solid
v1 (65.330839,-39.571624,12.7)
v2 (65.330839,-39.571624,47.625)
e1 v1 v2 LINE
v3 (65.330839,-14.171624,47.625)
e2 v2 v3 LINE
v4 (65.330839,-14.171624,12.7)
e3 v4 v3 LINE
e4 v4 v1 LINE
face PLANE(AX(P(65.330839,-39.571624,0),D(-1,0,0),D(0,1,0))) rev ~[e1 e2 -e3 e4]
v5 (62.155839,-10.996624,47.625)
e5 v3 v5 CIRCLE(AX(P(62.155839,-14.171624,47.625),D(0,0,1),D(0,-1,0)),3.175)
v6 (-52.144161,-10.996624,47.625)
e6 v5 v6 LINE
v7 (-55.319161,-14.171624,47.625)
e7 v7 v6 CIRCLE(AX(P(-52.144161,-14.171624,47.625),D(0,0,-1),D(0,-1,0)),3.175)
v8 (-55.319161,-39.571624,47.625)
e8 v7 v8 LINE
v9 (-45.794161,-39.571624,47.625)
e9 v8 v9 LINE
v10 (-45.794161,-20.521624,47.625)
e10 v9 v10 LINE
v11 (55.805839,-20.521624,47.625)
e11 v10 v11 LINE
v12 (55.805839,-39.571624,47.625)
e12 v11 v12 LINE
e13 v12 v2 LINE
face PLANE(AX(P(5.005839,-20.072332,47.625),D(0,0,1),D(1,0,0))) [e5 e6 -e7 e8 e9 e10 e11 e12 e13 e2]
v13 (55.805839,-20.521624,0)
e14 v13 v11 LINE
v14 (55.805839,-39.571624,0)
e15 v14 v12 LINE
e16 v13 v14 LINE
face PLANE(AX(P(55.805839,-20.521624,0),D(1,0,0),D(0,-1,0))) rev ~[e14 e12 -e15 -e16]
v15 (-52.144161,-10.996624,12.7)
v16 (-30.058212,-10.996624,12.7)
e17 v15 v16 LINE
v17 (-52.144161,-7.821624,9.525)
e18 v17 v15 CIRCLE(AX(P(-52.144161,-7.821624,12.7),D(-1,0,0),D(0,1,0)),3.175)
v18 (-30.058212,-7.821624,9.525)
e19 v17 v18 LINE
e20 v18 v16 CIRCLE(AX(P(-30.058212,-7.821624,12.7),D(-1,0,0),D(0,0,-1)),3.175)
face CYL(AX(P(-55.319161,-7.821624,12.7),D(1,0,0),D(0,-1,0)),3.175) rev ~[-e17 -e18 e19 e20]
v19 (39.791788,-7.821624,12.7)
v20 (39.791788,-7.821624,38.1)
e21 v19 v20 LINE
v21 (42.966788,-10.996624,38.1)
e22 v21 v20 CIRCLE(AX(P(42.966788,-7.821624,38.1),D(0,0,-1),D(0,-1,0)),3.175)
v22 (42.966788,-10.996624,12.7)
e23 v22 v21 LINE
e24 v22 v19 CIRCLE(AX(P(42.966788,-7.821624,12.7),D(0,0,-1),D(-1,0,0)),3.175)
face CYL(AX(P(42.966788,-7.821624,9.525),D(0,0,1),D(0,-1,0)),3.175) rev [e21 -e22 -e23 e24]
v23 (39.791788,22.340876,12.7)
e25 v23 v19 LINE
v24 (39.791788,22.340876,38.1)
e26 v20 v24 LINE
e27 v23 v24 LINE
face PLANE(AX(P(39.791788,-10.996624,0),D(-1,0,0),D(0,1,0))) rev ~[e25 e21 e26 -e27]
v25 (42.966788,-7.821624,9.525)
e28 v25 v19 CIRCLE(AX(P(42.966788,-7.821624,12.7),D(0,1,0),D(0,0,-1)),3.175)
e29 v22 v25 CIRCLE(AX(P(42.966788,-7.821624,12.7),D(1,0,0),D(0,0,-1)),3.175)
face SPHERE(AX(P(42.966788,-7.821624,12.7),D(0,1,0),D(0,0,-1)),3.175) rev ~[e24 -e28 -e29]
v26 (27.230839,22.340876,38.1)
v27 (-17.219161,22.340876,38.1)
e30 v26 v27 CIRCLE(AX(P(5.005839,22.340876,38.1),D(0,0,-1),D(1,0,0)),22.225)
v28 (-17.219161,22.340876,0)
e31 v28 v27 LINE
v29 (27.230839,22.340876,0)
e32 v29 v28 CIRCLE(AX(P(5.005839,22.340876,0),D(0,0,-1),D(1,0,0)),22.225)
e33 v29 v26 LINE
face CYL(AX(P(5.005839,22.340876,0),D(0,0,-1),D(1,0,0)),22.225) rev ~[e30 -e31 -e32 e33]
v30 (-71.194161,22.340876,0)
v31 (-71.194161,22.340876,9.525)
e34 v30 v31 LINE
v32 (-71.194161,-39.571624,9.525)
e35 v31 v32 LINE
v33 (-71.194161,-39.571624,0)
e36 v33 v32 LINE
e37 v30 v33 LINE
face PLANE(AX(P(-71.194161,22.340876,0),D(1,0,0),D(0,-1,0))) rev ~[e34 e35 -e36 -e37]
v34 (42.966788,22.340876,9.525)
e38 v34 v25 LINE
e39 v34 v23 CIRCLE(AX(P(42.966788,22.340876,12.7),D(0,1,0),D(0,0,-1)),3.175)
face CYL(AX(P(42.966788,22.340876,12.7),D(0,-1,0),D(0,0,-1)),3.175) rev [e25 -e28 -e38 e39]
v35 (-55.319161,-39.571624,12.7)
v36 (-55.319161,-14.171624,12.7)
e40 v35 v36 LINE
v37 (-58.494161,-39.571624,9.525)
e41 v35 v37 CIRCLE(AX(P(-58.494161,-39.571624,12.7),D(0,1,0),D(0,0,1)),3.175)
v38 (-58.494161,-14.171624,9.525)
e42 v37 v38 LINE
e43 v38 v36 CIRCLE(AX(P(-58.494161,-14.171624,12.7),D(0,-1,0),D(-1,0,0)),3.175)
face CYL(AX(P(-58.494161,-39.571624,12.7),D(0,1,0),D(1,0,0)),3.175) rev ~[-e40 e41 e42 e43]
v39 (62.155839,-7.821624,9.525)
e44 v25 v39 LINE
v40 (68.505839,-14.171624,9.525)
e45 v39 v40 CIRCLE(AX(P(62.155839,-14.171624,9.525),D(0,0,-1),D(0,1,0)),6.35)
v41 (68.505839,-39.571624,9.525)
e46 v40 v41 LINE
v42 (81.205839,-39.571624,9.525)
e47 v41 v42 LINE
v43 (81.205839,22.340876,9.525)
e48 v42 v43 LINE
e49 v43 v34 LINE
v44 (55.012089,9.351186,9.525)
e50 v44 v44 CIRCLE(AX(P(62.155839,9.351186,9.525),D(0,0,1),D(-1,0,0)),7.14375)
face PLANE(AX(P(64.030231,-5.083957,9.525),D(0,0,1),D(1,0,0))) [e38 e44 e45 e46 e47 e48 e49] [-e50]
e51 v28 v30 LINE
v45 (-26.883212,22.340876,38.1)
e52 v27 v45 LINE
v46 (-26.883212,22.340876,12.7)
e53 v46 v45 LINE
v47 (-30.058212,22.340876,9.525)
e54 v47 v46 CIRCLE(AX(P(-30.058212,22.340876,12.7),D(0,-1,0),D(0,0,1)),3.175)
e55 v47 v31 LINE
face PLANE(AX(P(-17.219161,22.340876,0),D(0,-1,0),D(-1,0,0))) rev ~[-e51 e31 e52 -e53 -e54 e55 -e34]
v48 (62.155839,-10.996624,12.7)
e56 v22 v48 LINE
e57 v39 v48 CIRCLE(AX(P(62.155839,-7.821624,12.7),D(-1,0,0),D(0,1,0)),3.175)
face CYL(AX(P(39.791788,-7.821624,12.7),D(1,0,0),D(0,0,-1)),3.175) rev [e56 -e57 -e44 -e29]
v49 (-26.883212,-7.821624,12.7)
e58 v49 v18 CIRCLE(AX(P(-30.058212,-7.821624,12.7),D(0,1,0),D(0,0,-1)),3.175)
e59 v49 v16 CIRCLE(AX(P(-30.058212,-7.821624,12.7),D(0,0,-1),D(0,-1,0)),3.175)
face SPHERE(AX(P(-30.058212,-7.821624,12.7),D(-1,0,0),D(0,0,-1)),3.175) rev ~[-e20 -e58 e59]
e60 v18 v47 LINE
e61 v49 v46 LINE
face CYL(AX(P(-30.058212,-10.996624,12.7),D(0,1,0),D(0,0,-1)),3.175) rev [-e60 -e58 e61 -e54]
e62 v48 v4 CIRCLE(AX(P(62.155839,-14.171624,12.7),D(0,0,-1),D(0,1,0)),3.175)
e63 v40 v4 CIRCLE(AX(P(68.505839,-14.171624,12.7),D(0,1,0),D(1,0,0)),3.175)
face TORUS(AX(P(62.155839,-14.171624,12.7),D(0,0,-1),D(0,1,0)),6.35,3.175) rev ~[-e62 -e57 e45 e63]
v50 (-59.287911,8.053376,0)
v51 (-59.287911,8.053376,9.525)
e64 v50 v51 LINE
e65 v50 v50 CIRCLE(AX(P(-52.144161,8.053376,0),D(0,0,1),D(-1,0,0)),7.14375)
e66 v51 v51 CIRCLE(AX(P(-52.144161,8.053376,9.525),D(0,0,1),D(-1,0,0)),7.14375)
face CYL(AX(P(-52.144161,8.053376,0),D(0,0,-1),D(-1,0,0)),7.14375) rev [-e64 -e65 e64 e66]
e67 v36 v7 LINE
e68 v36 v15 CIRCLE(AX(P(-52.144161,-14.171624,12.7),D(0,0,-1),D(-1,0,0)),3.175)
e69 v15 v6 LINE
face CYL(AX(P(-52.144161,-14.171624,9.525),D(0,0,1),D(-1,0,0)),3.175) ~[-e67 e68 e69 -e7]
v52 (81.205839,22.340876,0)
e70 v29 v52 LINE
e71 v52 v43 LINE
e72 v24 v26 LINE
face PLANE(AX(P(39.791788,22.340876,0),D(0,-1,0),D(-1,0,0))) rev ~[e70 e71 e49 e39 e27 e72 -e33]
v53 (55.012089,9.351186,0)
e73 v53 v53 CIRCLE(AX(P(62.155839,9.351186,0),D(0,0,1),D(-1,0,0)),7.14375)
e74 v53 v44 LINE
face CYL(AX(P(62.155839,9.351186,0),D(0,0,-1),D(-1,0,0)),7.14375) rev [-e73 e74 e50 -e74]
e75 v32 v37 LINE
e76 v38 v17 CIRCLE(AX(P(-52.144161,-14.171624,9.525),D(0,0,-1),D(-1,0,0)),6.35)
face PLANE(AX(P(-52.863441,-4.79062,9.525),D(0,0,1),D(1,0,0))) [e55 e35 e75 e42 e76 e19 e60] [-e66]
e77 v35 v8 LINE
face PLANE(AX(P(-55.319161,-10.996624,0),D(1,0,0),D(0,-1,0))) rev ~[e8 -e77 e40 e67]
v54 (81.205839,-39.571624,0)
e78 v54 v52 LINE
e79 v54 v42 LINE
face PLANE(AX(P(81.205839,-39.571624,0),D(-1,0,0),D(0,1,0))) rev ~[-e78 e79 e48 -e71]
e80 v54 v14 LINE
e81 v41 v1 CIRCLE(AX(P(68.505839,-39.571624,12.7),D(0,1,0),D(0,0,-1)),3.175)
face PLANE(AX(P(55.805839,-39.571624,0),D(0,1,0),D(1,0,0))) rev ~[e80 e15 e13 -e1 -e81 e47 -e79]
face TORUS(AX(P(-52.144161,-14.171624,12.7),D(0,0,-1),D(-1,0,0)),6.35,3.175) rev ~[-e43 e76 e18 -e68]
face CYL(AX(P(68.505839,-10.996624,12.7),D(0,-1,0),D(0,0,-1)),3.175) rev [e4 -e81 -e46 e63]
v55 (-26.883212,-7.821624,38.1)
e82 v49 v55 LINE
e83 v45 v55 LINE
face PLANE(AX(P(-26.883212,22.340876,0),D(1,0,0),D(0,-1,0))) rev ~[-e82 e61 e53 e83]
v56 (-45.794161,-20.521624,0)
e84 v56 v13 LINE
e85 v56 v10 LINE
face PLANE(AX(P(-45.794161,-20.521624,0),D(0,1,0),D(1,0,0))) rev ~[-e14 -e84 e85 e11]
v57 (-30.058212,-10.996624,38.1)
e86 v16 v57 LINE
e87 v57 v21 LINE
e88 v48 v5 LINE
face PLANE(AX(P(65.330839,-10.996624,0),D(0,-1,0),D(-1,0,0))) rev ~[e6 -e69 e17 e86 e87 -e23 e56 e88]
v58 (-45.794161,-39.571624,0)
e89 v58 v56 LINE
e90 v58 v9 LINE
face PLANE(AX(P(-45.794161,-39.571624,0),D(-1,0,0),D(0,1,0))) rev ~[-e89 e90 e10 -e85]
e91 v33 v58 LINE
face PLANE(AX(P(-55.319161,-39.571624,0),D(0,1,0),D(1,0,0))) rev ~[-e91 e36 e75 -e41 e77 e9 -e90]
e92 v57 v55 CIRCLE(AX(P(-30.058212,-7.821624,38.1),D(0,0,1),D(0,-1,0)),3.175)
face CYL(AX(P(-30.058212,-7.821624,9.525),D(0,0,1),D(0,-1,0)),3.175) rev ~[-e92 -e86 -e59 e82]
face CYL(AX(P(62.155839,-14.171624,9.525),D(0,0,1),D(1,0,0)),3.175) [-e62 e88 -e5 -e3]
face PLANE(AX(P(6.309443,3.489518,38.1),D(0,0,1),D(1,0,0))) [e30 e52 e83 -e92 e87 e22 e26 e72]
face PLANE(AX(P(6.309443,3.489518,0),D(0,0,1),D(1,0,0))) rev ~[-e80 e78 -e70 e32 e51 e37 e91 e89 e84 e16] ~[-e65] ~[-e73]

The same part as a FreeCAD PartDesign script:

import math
import FreeCAD as App
import Part
import Sketcher

V = App.Vector
Q = App.Units.Quantity


def edges_at(feature, points):
    """Names of the edges that pass closest to the given points."""
    edges = feature.Shape.Edges
    near = lambda p: min(range(len(edges)), key=lambda i: edges[i].distToShape(Part.Vertex(*p))[0])
    return sorted({f"Edge{near(p) + 1}" for p in points})


def add_polygon(sketch, points):
    """Adds a closed chain of lines whose ends are joined by coincident constraints."""
    first, n = sketch.GeometryCount, len(points)
    for a, b in zip(points, points[1:] + points[:1]):
        sketch.addGeometry(Part.LineSegment(App.Vector(*a, 0), App.Vector(*b, 0)), False)
    for i in range(n):
        sketch.addConstraint(Sketcher.Constraint("Coincident", first + i, 2, first + (i + 1) % n, 1))

doc = App.newDocument("Part")
params = doc.addObject("Spreadsheet::Sheet", "Params")
for row, (alias, value) in enumerate([
    ("sketch1_diameter", "0.5625 in"),
    ("sketch1_width", "0.625 in"),
    ("sketch1_height", "1.3125 in"),
    ("sketch1_height2", "2.4375 in"),
    ("pad1_length", "0.375 in"),
    ("sketch2_diameter", "0.5625 in"),
    ("sketch2_width", "0.625 in"),
    ("sketch2_height", "1.3125 in"),
    ("sketch2_height2", "1.125 in"),
    ("pad2_length", "0.375 in"),
    ("sketch3_width", "4 in"),
    ("sketch3_width2", "4.75 in"),
    ("sketch3_height", "0.75 in"),
    ("sketch3_height2", "1.125 in"),
    ("pad3_length", "1.875 in"),
    ("sketch4_radius", "0.875 in"),
    ("sketch4_width", "2.625 in"),
    ("sketch4_height", "1.3125 in"),
    ("pad4_length", "1.5 in"),
    ("fillet_radius", "0.125 in"),
], start=1):
    params.set(f"A{row}", alias)
    params.set(f"B{row}", "=" + value)
    params.setAlias(f"B{row}", alias)

body = doc.addObject("PartDesign::Body", "Body")

sketch1 = doc.addObject("Sketcher::SketchObject", "Sketch")
body.addObject(sketch1)
sketch1.AttachmentSupport = (doc.XY_Plane, [""])
sketch1.MapMode = "FlatFace"
add_polygon(sketch1, [(-27, -11), (-27, 22), (-71, 22), (-71, -40), (-55, -40), (-55, -11)])
sketch1.addGeometry(Part.Circle(V(-52, 8, 0), V(0, 0, 1), 7), False)
sketch1.addConstraint([
    Sketcher.Constraint("Vertical", 0),
    Sketcher.Constraint("Horizontal", 1),
    Sketcher.Constraint("Vertical", 2),
    Sketcher.Constraint("Horizontal", 3),
    Sketcher.Constraint("Vertical", 4),
    Sketcher.Constraint("Horizontal", 5),
    Sketcher.Constraint("Diameter", 6, Q("0.5625 in")),
    Sketcher.Constraint("DistanceX", 3, 1, 3, 2, Q("0.625 in")),
    Sketcher.Constraint("DistanceY", 0, 1, 0, 2, Q("1.3125 in")),
    Sketcher.Constraint("DistanceY", 2, 2, 2, 1, Q("2.4375 in")),
    Sketcher.Constraint("DistanceX", 1, 2, 6, 3, Q("0.75 in")),
    Sketcher.Constraint("DistanceY", 4, 2, 6, 3, Q("0.75 in")),
    Sketcher.Constraint("DistanceX", 1, 2, 1, 1, 44.310949),
    Sketcher.Constraint("DistanceX", 6, 3, -1, 1, 52.144161),
    Sketcher.Constraint("DistanceY", -1, 1, 6, 3, 8.053376),
])
sketch1.setExpression("Constraints[12]", "Params.sketch1_diameter")
sketch1.setExpression("Constraints[13]", "Params.sketch1_width")
sketch1.setExpression("Constraints[14]", "Params.sketch1_height")
sketch1.setExpression("Constraints[15]", "Params.sketch1_height2")
pad1 = doc.addObject("PartDesign::Pad", "Pad")
body.addObject(pad1)
pad1.Profile = sketch1
pad1.setExpression("Length", "Params.pad1_length")
body2 = doc.addObject("PartDesign::Body", "Body001")

sketch2 = doc.addObject("Sketcher::SketchObject", "Sketch001")
body2.addObject(sketch2)
sketch2.AttachmentSupport = (doc.getObject("XY_Plane001"), [""])
sketch2.MapMode = "FlatFace"
add_polygon(sketch2, [(40, 22), (40, -11), (65, -11), (65, -40), (81, -40), (81, 22)])
sketch2.addGeometry(Part.Circle(V(62, 9, 0), V(0, 0, 1), 7), False)
sketch2.addConstraint([
    Sketcher.Constraint("Vertical", 0),
    Sketcher.Constraint("Horizontal", 1),
    Sketcher.Constraint("Vertical", 2),
    Sketcher.Constraint("Horizontal", 3),
    Sketcher.Constraint("Vertical", 4),
    Sketcher.Constraint("Horizontal", 5),
    Sketcher.Constraint("Diameter", 6, Q("0.5625 in")),
    Sketcher.Constraint("DistanceX", 3, 1, 3, 2, Q("0.625 in")),
    Sketcher.Constraint("DistanceY", 0, 2, 0, 1, Q("1.3125 in")),
    Sketcher.Constraint("DistanceY", 2, 2, 2, 1, Q("1.125 in")),
    Sketcher.Constraint("DistanceX", 6, 3, 3, 2, Q("0.75 in")),
    Sketcher.Constraint("DistanceX", 1, 1, 1, 2, 25.539051),
    Sketcher.Constraint("DistanceX", -1, 1, 6, 3, 62.155839),
    Sketcher.Constraint("DistanceY", 0, 2, 6, 3, 20.34781),
    Sketcher.Constraint("DistanceY", -1, 1, 6, 3, 9.351186),
])
sketch2.setExpression("Constraints[12]", "Params.sketch2_diameter")
sketch2.setExpression("Constraints[13]", "Params.sketch2_width")
sketch2.setExpression("Constraints[14]", "Params.sketch2_height")
sketch2.setExpression("Constraints[15]", "Params.sketch2_height2")
pad2 = doc.addObject("PartDesign::Pad", "Pad001")
body2.addObject(pad2)
pad2.Profile = sketch2
pad2.setExpression("Length", "Params.pad2_length")
body.AllowCompound = True
doc.recompute()

boolean = doc.addObject("PartDesign::Boolean", "Boolean")
body.addObject(boolean)
boolean.Type = "Fuse"
boolean.addObjects([body2])

sketch3 = doc.addObject("Sketcher::SketchObject", "Sketch002")
body.addObject(sketch3)
sketch3.AttachmentSupport = (doc.XY_Plane, [""])
sketch3.MapMode = "FlatFace"
add_polygon(sketch3, [(-55, -11), (-55, -40), (-46, -40), (-46, -21), (56, -21), (56, -40), (65, -40), (65, -11)])
sketch3.addConstraint([
    Sketcher.Constraint("Vertical", 0),
    Sketcher.Constraint("Horizontal", 1),
    Sketcher.Constraint("Vertical", 2),
    Sketcher.Constraint("Horizontal", 3),
    Sketcher.Constraint("Vertical", 4),
    Sketcher.Constraint("Horizontal", 5),
    Sketcher.Constraint("Vertical", 6),
    Sketcher.Constraint("Horizontal", 7),
    Sketcher.Constraint("Horizontal", 1, 2, 4, 2),
    Sketcher.Constraint("Equal", 1, 5),
    Sketcher.Constraint("DistanceX", 3, 1, 3, 2, Q("4 in")),
    Sketcher.Constraint("DistanceX", 7, 2, 7, 1, Q("4.75 in")),
    Sketcher.Constraint("DistanceY", 2, 1, 2, 2, Q("0.75 in")),
    Sketcher.Constraint("DistanceY", 0, 2, 0, 1, Q("1.125 in")),
    Sketcher.Constraint("DistanceX", 0, 2, -1, 1, 55.319161),
    Sketcher.Constraint("DistanceY", 0, 2, -1, 1, 39.571624),
])
sketch3.setExpression("Constraints[18]", "Params.sketch3_width")
sketch3.setExpression("Constraints[19]", "Params.sketch3_width2")
sketch3.setExpression("Constraints[20]", "Params.sketch3_height")
sketch3.setExpression("Constraints[21]", "Params.sketch3_height2")
pad3 = doc.addObject("PartDesign::Pad", "Pad002")
body.addObject(pad3)
pad3.Profile = sketch3
pad3.setExpression("Length", "Params.pad3_length")

sketch4 = doc.addObject("Sketcher::SketchObject", "Sketch003")
body.addObject(sketch4)
sketch4.AttachmentSupport = (doc.XY_Plane, [""])
sketch4.MapMode = "FlatFace"
sketch4.addGeometry([
    Part.LineSegment(V(-17, 22, 0), V(-27, 22, 0)),
    Part.LineSegment(V(-27, 22, 0), V(-27, -11, 0)),
    Part.LineSegment(V(-27, -11, 0), V(40, -11, 0)),
    Part.LineSegment(V(40, -11, 0), V(40, 22, 0)),
    Part.LineSegment(V(40, 22, 0), V(27, 22, 0)),
    Part.ArcOfCircle(Part.Circle(V(5, 22, 0), V(0, 0, 1), 22), math.radians(180), math.radians(360)),
], False)
sketch4.addConstraint([
    Sketcher.Constraint("Coincident", 0, 2, 1, 1),
    Sketcher.Constraint("Coincident", 1, 2, 2, 1),
    Sketcher.Constraint("Coincident", 2, 2, 3, 1),
    Sketcher.Constraint("Coincident", 3, 2, 4, 1),
    Sketcher.Constraint("Coincident", 4, 2, 5, 2),
    Sketcher.Constraint("Coincident", 5, 1, 0, 1),
    Sketcher.Constraint("Horizontal", 0),
    Sketcher.Constraint("Vertical", 1),
    Sketcher.Constraint("Horizontal", 2),
    Sketcher.Constraint("Vertical", 3),
    Sketcher.Constraint("Horizontal", 4),
    Sketcher.Constraint("Horizontal", 5, 3, 0, 2),
    Sketcher.Constraint("Horizontal", 0, 2, 3, 2),
    Sketcher.Constraint("Radius", 5, Q("0.875 in")),
    Sketcher.Constraint("DistanceX", 2, 1, 2, 2, Q("2.625 in")),
    Sketcher.Constraint("DistanceY", 1, 2, 1, 1, Q("1.3125 in")),
    Sketcher.Constraint("DistanceX", 0, 2, 0, 1, 9.664051),
    Sketcher.Constraint("DistanceX", -1, 1, 5, 3, 5.005839),
    Sketcher.Constraint("DistanceY", -1, 1, 5, 3, 22.340876),
])
sketch4.setExpression("Constraints[13]", "Params.sketch4_radius")
sketch4.setExpression("Constraints[14]", "Params.sketch4_width")
sketch4.setExpression("Constraints[15]", "Params.sketch4_height")
pad4 = doc.addObject("PartDesign::Pad", "Pad003")
body.addObject(pad4)
pad4.Profile = sketch4
pad4.setExpression("Length", "Params.pad4_length")
doc.recompute()

fillet = doc.addObject("PartDesign::Fillet", "Fillet")
body.addObject(fillet)
fillet.Base = (pad4, edges_at(pad4, [
    (-41.101, -10.997, 9.525),
    (-26.883, 5.672, 9.525),
    (65.331, -10.997, 28.575),
    (-55.319, -10.997, 28.575),
    (39.792, 5.672, 9.525),
    (52.561, -10.997, 9.525),
    (65.331, -25.284, 9.525),
    (-26.883, -10.997, 23.812),
    (39.792, -10.997, 23.812),
    (-55.319, -25.284, 9.525),
]))
fillet.setExpression("Radius", "Params.fillet_radius")

doc.recompute()
